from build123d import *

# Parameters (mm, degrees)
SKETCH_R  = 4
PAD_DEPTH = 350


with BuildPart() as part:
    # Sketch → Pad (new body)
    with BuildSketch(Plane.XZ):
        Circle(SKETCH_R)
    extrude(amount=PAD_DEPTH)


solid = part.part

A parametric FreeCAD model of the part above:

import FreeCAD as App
import Part
import Sketcher
Q = App.Units.Quantity

doc = App.newDocument("Part")
body = doc.addObject("PartDesign::Body", "Body")

sketch1 = body.newObject("Sketcher::SketchObject", "Sketch")
sketch1.AttachmentSupport = (doc.getObject("XZ_Plane"), [""])
sketch1.MapMode = "FlatFace"
sketch1.addGeometry(Part.Circle(App.Vector(0, 0, 0), App.Vector(0, 0, 1), 4), False)
sketch1.addConstraint(Sketcher.Constraint("Coincident", 0, 3, -1, 1))
sketch1.addConstraint(Sketcher.Constraint("Diameter", 0, Q("8 mm")))
pad1 = body.newObject("PartDesign::Pad", "Pad")
pad1.Profile = sketch1
pad1.Length = 350

doc.recompute()
